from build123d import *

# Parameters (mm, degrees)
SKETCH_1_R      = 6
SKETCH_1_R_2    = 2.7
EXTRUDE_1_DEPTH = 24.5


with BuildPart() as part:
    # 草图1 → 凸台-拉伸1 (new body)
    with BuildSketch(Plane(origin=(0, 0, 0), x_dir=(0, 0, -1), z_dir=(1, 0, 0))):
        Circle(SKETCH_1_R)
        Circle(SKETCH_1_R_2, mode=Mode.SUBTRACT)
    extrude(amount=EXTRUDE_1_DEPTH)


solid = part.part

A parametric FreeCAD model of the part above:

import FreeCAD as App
import Part
import Sketcher

doc = App.newDocument("Part")
body = doc.addObject("PartDesign::Body", "Body")

# Sketch on YZ plane
sketch1 = body.newObject("Sketcher::SketchObject", "Sketch")
sketch1.AttachmentSupport = (doc.getObject("YZ_Plane"), [""])
sketch1.MapMode = "FlatFace"
sketch1.addGeometry(Part.Circle(App.Vector(0, 0, 0), App.Vector(0, 0, 1), 6), False)
sketch1.addGeometry(Part.Circle(App.Vector(0, 0, 0), App.Vector(0, 0, 1), 2.7), False)
sketch1.addConstraint(Sketcher.Constraint("Coincident", 0, 3, -1, 1))
sketch1.addConstraint(Sketcher.Constraint("Coincident", 1, 3, -1, 1))
sketch1.addConstraint(Sketcher.Constraint("Diameter", 0, 12.0))
sketch1.addConstraint(Sketcher.Constraint("Diameter", 1, 5.4))
pad1 = body.newObject("PartDesign::Pad", "Pad")
pad1.Profile = sketch1
pad1.Length = 24.5

doc.recompute()
